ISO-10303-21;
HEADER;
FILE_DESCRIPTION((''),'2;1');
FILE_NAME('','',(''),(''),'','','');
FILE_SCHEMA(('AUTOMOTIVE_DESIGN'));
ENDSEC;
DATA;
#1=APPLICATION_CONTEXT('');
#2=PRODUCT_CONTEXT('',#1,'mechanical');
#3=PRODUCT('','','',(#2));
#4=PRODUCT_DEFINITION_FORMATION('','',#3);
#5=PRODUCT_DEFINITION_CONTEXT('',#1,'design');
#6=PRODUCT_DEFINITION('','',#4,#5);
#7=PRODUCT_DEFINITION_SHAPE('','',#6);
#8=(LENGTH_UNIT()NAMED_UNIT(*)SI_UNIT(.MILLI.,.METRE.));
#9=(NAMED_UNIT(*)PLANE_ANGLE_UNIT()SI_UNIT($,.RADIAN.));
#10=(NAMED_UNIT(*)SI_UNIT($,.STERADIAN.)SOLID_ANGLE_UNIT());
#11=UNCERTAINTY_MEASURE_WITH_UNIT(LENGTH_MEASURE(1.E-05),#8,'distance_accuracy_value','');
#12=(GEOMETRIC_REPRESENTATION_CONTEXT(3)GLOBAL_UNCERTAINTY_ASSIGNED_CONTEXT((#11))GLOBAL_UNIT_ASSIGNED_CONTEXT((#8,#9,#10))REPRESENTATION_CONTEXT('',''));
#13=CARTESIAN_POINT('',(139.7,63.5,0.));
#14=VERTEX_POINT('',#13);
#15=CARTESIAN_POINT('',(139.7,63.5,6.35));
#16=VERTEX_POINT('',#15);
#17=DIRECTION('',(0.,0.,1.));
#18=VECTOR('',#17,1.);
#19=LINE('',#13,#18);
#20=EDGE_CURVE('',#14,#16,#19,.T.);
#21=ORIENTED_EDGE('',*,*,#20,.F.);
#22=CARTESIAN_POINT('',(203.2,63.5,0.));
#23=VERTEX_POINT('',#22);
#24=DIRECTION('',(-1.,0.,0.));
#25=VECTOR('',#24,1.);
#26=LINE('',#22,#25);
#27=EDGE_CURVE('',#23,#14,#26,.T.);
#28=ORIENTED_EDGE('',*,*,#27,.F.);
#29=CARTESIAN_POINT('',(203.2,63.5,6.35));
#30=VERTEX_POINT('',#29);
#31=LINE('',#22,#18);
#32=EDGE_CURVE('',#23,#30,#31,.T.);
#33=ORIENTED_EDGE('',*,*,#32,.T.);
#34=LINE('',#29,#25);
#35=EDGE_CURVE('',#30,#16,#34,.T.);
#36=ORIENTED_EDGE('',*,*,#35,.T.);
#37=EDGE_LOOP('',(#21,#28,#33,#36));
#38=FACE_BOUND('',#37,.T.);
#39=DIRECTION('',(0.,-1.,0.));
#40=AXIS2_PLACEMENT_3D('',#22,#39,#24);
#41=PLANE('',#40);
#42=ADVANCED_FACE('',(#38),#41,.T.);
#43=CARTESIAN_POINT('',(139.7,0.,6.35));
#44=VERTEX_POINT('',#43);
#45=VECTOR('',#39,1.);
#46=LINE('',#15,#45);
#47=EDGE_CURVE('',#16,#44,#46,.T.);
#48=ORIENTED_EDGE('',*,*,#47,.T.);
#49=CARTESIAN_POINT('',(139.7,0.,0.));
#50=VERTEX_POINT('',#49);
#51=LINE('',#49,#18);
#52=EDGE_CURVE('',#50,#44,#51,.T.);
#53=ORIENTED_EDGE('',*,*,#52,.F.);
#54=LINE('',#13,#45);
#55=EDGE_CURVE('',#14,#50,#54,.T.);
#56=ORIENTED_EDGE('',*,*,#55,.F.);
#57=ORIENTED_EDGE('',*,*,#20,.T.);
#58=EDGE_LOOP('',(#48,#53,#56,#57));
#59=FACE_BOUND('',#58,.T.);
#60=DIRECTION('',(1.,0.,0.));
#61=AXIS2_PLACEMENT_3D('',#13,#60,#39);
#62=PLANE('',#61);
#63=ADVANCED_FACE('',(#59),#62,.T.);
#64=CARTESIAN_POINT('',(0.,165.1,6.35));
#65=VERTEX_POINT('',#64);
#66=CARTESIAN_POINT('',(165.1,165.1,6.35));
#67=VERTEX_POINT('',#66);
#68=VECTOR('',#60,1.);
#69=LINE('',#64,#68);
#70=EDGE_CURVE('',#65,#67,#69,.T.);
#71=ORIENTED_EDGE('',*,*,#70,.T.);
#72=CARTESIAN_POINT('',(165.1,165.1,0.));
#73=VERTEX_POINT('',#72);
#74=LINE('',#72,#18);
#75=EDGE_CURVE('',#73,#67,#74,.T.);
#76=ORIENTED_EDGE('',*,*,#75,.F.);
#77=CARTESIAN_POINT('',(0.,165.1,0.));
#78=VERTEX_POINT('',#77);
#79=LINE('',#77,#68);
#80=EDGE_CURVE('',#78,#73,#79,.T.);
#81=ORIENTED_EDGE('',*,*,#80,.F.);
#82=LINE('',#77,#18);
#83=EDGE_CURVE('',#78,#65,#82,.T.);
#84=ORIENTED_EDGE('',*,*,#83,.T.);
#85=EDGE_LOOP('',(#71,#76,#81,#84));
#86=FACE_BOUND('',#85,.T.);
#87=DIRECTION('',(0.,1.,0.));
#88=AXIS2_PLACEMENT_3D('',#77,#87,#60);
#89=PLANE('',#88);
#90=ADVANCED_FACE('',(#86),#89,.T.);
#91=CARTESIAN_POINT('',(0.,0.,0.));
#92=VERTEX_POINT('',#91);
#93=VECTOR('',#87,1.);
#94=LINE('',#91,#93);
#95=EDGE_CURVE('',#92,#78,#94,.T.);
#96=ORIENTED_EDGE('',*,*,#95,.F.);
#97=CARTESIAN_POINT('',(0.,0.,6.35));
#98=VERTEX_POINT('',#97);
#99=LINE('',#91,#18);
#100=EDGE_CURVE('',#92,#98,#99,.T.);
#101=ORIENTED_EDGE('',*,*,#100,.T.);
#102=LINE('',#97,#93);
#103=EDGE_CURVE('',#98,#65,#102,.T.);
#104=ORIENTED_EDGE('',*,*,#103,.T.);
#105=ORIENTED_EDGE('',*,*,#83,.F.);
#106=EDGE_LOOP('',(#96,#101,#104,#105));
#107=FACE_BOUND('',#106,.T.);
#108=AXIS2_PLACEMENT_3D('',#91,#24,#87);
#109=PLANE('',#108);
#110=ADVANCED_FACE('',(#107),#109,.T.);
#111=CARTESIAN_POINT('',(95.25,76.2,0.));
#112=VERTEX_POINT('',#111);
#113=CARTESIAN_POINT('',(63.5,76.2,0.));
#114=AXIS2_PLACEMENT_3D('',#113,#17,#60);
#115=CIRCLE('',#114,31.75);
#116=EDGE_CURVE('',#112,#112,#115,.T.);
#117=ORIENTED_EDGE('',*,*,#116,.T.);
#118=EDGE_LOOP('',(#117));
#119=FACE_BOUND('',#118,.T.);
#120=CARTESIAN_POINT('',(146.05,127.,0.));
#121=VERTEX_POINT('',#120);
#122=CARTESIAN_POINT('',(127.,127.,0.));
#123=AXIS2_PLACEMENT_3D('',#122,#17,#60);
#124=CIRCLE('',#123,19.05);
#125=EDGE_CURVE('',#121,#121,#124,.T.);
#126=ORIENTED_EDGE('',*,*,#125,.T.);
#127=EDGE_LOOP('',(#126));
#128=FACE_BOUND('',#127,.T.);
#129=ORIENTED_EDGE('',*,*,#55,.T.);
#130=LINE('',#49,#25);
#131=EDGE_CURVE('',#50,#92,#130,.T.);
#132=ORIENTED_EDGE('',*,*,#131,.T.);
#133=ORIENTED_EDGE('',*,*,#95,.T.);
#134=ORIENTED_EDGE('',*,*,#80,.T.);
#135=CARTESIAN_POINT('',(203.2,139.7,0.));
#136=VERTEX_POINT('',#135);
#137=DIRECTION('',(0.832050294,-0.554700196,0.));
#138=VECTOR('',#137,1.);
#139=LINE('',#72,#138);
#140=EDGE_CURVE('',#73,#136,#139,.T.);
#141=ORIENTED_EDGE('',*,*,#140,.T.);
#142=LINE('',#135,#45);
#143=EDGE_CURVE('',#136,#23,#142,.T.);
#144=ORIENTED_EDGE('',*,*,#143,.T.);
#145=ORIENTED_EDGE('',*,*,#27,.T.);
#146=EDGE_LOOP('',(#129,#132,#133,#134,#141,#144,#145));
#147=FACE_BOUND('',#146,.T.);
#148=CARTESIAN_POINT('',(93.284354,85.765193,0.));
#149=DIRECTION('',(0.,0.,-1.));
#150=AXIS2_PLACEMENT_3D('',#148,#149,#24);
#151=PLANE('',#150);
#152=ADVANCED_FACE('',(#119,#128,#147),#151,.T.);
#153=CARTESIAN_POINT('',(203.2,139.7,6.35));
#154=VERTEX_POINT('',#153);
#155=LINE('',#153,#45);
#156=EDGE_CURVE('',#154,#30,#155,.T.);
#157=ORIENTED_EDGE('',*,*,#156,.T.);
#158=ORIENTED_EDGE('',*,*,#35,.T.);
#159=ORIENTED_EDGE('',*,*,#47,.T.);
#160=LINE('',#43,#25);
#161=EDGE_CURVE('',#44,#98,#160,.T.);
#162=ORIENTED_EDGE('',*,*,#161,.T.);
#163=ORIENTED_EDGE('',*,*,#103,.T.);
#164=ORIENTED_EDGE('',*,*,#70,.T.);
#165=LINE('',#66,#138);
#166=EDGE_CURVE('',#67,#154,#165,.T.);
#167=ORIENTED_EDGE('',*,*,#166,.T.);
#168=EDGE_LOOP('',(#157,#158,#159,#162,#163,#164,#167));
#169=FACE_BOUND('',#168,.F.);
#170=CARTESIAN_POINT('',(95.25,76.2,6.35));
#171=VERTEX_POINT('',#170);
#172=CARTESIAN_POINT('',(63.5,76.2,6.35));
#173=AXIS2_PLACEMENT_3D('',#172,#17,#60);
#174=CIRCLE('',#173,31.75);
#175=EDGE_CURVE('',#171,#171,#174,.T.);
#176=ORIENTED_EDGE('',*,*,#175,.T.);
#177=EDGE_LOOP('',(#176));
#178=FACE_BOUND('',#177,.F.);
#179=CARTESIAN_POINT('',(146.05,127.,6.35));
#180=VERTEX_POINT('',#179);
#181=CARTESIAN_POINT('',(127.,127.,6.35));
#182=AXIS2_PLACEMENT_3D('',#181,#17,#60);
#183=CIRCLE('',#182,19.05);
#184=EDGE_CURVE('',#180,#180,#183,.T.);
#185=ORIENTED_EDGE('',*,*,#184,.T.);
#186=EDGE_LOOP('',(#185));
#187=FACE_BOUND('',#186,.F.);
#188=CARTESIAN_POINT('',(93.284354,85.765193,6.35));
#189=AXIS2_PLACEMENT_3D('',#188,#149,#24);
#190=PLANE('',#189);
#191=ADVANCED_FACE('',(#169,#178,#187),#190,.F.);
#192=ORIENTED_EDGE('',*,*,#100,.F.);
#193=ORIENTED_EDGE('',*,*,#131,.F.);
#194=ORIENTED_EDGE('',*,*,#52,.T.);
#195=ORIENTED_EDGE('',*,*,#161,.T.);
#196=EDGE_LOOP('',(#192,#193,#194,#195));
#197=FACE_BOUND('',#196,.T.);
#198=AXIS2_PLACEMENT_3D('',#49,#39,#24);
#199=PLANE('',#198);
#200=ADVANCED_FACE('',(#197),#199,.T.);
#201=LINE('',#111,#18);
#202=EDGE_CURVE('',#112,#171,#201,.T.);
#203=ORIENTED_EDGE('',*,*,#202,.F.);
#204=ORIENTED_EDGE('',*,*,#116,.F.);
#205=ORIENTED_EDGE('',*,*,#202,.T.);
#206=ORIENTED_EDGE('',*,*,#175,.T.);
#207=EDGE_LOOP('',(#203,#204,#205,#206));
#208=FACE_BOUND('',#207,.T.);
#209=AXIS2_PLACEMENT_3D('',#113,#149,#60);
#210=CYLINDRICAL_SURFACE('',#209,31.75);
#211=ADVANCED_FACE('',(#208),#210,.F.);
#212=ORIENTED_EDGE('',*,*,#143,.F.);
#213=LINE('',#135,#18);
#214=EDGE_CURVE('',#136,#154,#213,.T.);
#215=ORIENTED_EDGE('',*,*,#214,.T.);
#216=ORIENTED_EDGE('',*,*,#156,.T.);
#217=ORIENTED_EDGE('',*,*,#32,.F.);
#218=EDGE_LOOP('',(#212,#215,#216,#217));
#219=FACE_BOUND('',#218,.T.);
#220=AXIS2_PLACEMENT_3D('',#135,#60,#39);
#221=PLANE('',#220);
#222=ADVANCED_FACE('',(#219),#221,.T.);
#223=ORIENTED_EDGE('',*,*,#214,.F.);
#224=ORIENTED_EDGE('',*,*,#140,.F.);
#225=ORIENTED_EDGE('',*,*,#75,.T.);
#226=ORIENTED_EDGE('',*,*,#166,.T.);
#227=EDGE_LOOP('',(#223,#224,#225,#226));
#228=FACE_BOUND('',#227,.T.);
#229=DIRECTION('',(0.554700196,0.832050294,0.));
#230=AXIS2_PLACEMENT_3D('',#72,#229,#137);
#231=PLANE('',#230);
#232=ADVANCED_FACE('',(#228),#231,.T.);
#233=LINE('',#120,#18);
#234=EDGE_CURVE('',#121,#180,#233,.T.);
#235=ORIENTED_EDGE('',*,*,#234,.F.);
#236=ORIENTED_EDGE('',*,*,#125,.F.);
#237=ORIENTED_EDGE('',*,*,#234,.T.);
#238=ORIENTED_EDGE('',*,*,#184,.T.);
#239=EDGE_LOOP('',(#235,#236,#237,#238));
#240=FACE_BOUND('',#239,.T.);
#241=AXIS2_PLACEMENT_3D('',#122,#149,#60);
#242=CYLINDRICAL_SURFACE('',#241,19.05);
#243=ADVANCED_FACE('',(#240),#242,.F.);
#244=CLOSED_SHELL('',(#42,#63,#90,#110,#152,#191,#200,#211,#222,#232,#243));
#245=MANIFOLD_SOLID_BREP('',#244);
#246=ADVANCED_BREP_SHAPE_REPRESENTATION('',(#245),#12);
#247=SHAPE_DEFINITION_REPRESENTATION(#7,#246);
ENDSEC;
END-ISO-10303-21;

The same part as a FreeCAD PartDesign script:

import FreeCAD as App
import Part
import Sketcher

V = App.Vector
Q = App.Units.Quantity

doc = App.newDocument("Part")
body = doc.addObject("PartDesign::Body", "Body")

sketch1 = body.newObject("Sketcher::SketchObject", "Sketch")
sketch1.AttachmentSupport = (doc.getObject("XY_Plane"), [""])
sketch1.MapMode = "FlatFace"
sketch1.addGeometry(Part.LineSegment(V(0, 165, 0), V(0, 0, 0)), False)
sketch1.addGeometry(Part.LineSegment(V(0, 0, 0), V(140, 0, 0)), False)
sketch1.addGeometry(Part.LineSegment(V(140, 0, 0), V(140, 64, 0)), False)
sketch1.addGeometry(Part.LineSegment(V(140, 64, 0), V(203, 64, 0)), False)
sketch1.addGeometry(Part.LineSegment(V(203, 64, 0), V(203, 140, 0)), False)
sketch1.addGeometry(Part.LineSegment(V(203, 140, 0), V(165, 165, 0)), False)
sketch1.addGeometry(Part.LineSegment(V(165, 165, 0), V(0, 165, 0)), False)
sketch1.addGeometry(Part.Circle(V(64, 76, 0), V(0, 0, 1), 32), False)
sketch1.addGeometry(Part.Circle(V(127, 127, 0), V(0, 0, 1), 19), False)
sketch1.addConstraint(Sketcher.Constraint("Coincident", 0, 2, 1, 1))
sketch1.addConstraint(Sketcher.Constraint("Coincident", 1, 2, 2, 1))
sketch1.addConstraint(Sketcher.Constraint("Coincident", 2, 2, 3, 1))
sketch1.addConstraint(Sketcher.Constraint("Coincident", 3, 2, 4, 1))
sketch1.addConstraint(Sketcher.Constraint("Coincident", 4, 2, 5, 1))
sketch1.addConstraint(Sketcher.Constraint("Coincident", 5, 2, 6, 1))
sketch1.addConstraint(Sketcher.Constraint("Coincident", 6, 2, 0, 1))
sketch1.addConstraint(Sketcher.Constraint("Vertical", 0))
sketch1.addConstraint(Sketcher.Constraint("Horizontal", 1))
sketch1.addConstraint(Sketcher.Constraint("Vertical", 2))
sketch1.addConstraint(Sketcher.Constraint("Horizontal", 3))
sketch1.addConstraint(Sketcher.Constraint("Vertical", 4))
sketch1.addConstraint(Sketcher.Constraint("Horizontal", 6))
sketch1.addConstraint(Sketcher.Constraint("Coincident", 0, 2, -1, 1))
sketch1.addConstraint(Sketcher.Constraint("Equal", 6, 0))
sketch1.addConstraint(Sketcher.Constraint("Equal", 3, 2))
sketch1.addConstraint(Sketcher.Constraint("Diameter", 7, Q("2.5 in")))
sketch1.addConstraint(Sketcher.Constraint("Diameter", 8, Q("1.5 in")))
sketch1.addConstraint(Sketcher.Constraint("DistanceY", 4, 1, 4, 2, Q("3 in")))
sketch1.addConstraint(Sketcher.Constraint("DistanceX", 1, 1, 1, 2, Q("5.5 in")))
sketch1.addConstraint(Sketcher.Constraint("DistanceX", 3, 1, 3, 2, Q("2.5 in")))
sketch1.addConstraint(Sketcher.Constraint("DistanceX", 6, 2, 6, 1, Q("6.5 in")))
sketch1.addConstraint(Sketcher.Constraint("DistanceY", -1, 1, 7, 3, Q("3 in")))
sketch1.addConstraint(Sketcher.Constraint("DistanceX", -1, 1, 8, 3, Q("5 in")))
sketch1.addConstraint(Sketcher.Constraint("DistanceY", -1, 1, 8, 3, Q("5 in")))
sketch1.addConstraint(Sketcher.Constraint("DistanceX", 7, 3, 1, 2, Q("3 in")))
pad1 = body.newObject("PartDesign::Pad", "Pad")
pad1.Profile = sketch1
pad1.Length = Q("0.25 in")

doc.recompute()
